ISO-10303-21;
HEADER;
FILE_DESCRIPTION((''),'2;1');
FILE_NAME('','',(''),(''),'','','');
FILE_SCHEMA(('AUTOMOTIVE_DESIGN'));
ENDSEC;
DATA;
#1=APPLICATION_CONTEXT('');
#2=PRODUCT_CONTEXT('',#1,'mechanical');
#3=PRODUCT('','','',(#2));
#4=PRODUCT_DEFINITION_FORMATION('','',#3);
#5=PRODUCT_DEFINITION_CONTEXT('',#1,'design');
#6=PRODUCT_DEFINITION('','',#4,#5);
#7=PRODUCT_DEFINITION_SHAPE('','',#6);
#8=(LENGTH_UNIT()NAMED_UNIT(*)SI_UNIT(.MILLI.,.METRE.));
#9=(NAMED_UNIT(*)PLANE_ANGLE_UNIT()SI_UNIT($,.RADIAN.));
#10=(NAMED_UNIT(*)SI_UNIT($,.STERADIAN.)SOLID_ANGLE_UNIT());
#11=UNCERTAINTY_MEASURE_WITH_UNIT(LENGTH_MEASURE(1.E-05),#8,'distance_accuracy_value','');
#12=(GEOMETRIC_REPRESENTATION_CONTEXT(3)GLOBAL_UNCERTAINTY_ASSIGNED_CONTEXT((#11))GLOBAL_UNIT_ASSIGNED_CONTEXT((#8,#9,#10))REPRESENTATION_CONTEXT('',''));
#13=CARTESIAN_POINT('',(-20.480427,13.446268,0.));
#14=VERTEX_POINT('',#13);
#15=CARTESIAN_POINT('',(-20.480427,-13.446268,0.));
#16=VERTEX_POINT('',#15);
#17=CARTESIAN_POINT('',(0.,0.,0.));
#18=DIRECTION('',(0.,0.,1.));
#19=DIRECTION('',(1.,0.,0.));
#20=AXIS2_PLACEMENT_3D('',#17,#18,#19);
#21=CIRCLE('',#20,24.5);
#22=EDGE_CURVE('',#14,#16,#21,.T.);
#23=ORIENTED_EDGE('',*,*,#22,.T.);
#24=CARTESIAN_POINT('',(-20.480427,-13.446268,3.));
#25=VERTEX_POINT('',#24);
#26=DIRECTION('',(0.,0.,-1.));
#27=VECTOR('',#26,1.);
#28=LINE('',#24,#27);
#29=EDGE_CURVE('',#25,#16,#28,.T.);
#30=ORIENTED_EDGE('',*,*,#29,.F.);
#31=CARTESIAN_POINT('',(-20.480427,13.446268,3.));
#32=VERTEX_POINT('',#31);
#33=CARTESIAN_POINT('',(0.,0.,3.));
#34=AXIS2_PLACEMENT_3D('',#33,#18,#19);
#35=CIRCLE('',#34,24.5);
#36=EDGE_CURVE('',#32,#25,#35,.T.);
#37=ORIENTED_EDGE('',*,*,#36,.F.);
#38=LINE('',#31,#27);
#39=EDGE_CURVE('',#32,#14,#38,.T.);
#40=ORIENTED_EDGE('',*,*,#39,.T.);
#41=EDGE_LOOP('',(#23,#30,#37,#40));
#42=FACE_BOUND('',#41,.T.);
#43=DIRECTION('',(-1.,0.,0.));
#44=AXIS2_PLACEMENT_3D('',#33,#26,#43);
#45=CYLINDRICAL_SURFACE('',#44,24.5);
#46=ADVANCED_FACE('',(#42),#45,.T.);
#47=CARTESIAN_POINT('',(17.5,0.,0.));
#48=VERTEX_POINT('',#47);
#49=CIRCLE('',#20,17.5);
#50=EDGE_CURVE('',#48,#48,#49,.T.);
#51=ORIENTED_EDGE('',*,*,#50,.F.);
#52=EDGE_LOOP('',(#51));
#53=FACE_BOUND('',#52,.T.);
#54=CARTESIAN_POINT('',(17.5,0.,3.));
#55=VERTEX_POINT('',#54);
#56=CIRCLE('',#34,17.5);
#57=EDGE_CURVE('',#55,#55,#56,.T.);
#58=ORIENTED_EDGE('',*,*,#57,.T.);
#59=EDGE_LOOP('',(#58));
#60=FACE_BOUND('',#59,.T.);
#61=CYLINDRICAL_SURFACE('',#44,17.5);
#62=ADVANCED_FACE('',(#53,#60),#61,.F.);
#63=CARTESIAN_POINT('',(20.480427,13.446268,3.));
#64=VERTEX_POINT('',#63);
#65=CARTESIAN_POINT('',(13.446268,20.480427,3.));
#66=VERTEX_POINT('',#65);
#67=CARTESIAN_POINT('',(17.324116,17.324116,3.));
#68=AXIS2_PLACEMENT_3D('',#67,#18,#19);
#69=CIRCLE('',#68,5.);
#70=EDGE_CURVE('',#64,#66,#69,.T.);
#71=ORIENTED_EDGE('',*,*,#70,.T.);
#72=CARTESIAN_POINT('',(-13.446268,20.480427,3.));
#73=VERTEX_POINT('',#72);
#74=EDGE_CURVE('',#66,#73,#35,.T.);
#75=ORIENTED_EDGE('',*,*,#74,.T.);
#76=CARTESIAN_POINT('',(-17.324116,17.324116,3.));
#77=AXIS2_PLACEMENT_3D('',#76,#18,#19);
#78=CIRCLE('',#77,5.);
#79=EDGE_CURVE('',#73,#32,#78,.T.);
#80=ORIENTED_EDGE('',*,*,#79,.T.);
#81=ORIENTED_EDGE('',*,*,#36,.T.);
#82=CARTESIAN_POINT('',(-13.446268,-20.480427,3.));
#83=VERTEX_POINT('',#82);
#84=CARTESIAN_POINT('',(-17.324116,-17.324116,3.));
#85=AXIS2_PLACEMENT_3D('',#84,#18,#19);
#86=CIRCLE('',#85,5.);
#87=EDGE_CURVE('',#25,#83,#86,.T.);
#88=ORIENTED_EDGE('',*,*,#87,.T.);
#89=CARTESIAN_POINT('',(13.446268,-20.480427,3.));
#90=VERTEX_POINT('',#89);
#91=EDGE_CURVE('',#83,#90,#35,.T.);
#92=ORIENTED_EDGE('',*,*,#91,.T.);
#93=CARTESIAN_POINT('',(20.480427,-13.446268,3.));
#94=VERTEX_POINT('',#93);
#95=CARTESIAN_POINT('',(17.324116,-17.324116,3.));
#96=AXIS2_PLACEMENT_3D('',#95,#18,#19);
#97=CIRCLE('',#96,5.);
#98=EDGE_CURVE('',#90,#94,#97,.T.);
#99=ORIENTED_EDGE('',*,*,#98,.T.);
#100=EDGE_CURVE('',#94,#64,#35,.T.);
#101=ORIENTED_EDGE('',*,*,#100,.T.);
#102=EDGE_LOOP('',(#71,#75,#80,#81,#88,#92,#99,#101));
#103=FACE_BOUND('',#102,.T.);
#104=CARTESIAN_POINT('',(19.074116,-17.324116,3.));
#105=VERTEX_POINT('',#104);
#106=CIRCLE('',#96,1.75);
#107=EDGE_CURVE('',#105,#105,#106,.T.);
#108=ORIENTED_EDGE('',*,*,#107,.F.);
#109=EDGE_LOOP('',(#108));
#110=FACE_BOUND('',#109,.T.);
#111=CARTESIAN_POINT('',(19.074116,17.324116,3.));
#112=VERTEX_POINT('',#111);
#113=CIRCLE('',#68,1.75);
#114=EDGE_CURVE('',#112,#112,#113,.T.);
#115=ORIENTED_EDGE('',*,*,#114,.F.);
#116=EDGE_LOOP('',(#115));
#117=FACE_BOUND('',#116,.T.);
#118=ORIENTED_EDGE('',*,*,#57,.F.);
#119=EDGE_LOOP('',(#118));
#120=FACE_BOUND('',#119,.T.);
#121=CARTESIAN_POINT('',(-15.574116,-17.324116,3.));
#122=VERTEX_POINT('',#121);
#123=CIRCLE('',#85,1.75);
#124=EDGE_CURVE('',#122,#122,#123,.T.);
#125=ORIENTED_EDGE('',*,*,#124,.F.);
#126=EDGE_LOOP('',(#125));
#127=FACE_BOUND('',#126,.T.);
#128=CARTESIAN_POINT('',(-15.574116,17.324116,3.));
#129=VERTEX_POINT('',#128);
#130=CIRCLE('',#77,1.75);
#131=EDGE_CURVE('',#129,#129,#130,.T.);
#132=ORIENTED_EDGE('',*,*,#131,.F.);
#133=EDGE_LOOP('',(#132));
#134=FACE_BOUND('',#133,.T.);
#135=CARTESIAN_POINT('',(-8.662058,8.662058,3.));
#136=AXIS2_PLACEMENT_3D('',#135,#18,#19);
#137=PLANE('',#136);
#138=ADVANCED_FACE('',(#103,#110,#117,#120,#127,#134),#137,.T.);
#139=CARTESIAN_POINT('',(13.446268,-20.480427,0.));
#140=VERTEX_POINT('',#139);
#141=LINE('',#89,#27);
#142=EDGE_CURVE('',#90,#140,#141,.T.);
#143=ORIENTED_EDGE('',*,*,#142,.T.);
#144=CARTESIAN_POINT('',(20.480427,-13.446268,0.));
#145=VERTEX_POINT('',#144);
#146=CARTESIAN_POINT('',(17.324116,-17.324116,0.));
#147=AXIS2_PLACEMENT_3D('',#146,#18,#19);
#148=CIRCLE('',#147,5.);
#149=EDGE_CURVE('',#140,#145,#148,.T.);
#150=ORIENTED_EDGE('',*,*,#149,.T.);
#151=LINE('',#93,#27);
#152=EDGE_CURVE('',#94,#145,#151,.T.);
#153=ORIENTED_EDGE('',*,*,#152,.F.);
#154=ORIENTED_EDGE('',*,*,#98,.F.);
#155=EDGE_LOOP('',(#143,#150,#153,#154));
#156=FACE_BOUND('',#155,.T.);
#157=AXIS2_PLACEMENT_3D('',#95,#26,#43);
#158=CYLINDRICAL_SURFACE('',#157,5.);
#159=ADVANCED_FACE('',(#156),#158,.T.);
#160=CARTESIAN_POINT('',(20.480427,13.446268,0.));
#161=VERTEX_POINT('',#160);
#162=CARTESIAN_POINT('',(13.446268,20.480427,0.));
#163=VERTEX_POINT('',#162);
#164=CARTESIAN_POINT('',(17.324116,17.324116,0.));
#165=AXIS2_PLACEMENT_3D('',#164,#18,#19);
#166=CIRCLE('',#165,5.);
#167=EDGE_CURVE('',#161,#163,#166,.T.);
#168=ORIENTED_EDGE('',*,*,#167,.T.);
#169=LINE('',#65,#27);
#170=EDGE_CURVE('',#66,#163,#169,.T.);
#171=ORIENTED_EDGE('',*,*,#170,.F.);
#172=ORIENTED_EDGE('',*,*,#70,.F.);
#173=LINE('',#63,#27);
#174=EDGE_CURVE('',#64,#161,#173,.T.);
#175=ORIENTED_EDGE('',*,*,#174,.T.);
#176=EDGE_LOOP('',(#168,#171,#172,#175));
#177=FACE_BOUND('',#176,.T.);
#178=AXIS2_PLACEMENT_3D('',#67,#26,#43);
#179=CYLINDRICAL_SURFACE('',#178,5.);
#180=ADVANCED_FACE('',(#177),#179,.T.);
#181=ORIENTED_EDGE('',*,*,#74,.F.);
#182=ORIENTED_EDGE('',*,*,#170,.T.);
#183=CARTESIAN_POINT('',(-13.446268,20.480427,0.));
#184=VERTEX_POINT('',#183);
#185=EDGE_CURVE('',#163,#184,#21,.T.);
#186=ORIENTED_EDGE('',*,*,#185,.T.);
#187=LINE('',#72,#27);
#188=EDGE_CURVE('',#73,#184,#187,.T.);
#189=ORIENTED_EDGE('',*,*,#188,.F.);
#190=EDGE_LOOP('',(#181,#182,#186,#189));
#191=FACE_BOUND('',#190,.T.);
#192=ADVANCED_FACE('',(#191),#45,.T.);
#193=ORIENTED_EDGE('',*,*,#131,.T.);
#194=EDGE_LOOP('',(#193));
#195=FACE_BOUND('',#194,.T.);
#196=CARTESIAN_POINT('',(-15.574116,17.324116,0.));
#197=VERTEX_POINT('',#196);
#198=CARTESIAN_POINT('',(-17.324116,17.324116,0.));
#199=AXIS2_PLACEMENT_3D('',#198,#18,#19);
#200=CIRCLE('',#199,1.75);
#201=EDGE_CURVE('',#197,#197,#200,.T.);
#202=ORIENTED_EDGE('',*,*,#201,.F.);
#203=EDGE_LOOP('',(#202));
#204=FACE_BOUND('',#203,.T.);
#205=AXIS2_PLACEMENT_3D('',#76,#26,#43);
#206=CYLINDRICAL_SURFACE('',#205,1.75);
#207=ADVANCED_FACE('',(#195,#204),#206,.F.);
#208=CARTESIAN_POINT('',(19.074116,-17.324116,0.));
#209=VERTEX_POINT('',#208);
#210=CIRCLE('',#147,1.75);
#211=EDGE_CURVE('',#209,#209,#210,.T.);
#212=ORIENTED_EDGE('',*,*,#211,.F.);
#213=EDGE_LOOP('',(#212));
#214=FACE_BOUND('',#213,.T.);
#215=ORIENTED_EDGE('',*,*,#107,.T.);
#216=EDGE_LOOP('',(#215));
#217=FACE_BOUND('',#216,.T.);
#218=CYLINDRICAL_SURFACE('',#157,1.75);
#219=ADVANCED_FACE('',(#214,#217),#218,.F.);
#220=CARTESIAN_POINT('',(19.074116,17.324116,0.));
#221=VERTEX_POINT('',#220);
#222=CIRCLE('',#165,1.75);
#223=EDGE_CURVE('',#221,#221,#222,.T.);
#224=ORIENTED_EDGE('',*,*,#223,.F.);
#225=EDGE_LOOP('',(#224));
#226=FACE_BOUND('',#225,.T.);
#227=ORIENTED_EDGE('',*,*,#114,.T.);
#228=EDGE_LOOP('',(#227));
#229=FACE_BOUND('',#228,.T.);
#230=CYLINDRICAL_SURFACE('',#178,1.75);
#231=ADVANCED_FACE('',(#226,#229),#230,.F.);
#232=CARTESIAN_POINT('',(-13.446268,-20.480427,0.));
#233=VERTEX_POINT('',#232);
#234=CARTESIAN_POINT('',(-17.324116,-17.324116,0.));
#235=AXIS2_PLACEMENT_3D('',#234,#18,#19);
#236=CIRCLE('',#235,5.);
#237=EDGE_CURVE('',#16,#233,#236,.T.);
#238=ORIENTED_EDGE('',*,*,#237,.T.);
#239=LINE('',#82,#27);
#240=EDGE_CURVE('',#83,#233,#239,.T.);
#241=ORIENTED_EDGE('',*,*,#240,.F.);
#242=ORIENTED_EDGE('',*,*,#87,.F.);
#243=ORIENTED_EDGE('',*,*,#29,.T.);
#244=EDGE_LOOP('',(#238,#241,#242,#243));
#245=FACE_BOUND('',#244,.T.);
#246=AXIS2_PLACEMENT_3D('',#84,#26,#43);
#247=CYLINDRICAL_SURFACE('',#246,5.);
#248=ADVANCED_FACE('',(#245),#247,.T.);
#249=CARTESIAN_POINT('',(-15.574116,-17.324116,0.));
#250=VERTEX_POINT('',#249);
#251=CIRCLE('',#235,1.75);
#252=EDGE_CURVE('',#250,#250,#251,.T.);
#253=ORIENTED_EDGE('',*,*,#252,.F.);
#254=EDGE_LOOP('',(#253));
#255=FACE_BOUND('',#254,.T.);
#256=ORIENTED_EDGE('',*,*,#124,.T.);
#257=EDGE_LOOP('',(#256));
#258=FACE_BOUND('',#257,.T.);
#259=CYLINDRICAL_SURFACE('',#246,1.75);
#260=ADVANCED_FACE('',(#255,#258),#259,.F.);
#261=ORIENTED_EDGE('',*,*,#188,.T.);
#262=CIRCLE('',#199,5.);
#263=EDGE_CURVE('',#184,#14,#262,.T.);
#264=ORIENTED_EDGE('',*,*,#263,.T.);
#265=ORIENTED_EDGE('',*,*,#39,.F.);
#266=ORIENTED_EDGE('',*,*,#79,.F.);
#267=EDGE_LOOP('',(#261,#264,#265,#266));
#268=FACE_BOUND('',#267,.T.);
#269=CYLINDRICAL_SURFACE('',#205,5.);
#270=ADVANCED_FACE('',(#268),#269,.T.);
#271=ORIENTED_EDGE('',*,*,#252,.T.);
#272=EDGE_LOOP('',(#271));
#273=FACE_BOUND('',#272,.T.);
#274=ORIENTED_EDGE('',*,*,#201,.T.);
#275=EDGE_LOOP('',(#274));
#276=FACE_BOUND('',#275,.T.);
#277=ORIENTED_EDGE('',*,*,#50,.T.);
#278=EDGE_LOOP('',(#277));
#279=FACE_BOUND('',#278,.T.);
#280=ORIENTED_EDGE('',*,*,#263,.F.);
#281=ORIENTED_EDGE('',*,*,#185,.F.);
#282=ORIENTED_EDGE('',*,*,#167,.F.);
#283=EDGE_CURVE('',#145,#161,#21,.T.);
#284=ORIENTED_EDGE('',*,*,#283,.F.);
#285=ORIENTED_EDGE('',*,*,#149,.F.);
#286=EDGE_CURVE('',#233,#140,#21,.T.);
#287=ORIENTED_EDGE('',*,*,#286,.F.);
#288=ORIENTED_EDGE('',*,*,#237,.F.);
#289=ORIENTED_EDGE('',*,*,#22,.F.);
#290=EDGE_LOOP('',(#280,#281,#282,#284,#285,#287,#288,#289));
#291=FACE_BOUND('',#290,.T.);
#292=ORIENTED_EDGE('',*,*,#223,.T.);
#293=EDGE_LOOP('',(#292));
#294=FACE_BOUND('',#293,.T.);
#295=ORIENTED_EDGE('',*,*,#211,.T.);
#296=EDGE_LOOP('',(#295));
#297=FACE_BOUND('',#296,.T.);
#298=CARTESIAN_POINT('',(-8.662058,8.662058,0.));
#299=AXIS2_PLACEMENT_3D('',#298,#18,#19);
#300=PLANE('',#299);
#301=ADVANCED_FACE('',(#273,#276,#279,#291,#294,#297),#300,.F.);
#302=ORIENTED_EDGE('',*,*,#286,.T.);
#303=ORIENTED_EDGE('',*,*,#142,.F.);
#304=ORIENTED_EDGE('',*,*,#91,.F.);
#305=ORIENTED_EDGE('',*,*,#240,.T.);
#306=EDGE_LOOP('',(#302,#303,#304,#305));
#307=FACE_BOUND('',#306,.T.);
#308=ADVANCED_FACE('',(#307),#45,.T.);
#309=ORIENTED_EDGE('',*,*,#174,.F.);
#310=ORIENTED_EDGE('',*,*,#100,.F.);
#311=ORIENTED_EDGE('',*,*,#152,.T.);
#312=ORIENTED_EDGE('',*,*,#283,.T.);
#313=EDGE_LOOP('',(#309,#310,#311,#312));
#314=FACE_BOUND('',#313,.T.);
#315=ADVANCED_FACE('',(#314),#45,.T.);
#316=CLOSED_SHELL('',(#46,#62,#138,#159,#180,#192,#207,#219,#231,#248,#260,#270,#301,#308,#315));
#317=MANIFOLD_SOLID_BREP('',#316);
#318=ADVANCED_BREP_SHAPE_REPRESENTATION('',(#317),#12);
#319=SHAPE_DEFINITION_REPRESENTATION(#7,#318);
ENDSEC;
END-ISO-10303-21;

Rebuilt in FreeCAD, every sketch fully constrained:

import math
import FreeCAD as App
import Part
import Sketcher

V = App.Vector
Q = App.Units.Quantity

doc = App.newDocument("Part")
params = doc.addObject("Spreadsheet::Sheet", "Params")
for row, (alias, value) in enumerate([
    ("sketch1_diameter", "35 mm"),
    ("sketch1_radius", "5 mm"),
    ("sketch1_diameter2", "3.5 mm"),
    ("sketch1_radius2", "24.5 mm"),
    ("pad1_length", "3 mm"),
], start=1):
    params.set(f"A{row}", alias)
    params.set(f"B{row}", "=" + value)
    params.setAlias(f"B{row}", alias)

body = doc.addObject("PartDesign::Body", "Body")

sketch1 = doc.addObject("Sketcher::SketchObject", "Sketch")
body.addObject(sketch1)
sketch1.AttachmentSupport = (doc.XY_Plane, [""])
sketch1.MapMode = "FlatFace"
sketch1.addGeometry(Part.ArcOfCircle(Part.Circle(V(-17.3, 17.3, 0), V(0, 0, 1), 5), math.radians(39), math.radians(231)), False)
sketch1.addGeometry(Part.ArcOfCircle(Part.Circle(V(0, 0, 0), V(0, 0, 1), 24.5), math.radians(147), math.radians(213)), False)
sketch1.addGeometry(Part.ArcOfCircle(Part.Circle(V(-17.3, -17.3, 0), V(0, 0, 1), 5), math.radians(129), math.radians(321)), False)
sketch1.addGeometry(Part.ArcOfCircle(Part.Circle(V(0, 0, 0), V(0, 0, 1), 24.5), math.radians(-123), math.radians(-57)), False)
sketch1.addGeometry(Part.ArcOfCircle(Part.Circle(V(17.3, -17.3, 0), V(0, 0, 1), 5), math.radians(-141), math.radians(51)), False)
sketch1.addGeometry(Part.ArcOfCircle(Part.Circle(V(0, 0, 0), V(0, 0, 1), 24.5), math.radians(-33), math.radians(33)), False)
sketch1.addGeometry(Part.ArcOfCircle(Part.Circle(V(17.3, 17.3, 0), V(0, 0, 1), 5), math.radians(-51), math.radians(141)), False)
sketch1.addGeometry(Part.ArcOfCircle(Part.Circle(V(0, 0, 0), V(0, 0, 1), 24.5), math.radians(57), math.radians(123)), False)
sketch1.addGeometry(Part.Circle(V(-17.3, -17.3, 0), V(0, 0, 1), 1.8), False)
sketch1.addGeometry(Part.Circle(V(17.3, -17.3, 0), V(0, 0, 1), 1.8), False)
sketch1.addGeometry(Part.Circle(V(-17.3, 17.3, 0), V(0, 0, 1), 1.8), False)
sketch1.addGeometry(Part.Circle(V(0, 0, 0), V(0, 0, 1), 17.5), False)
sketch1.addGeometry(Part.Circle(V(17.3, 17.3, 0), V(0, 0, 1), 1.8), False)
sketch1.addConstraint(Sketcher.Constraint("Coincident", 0, 2, 1, 1))
sketch1.addConstraint(Sketcher.Constraint("Coincident", 1, 2, 2, 1))
sketch1.addConstraint(Sketcher.Constraint("Coincident", 2, 2, 3, 1))
sketch1.addConstraint(Sketcher.Constraint("Coincident", 3, 2, 4, 1))
sketch1.addConstraint(Sketcher.Constraint("Coincident", 4, 2, 5, 1))
sketch1.addConstraint(Sketcher.Constraint("Coincident", 5, 2, 6, 1))
sketch1.addConstraint(Sketcher.Constraint("Coincident", 6, 2, 7, 1))
sketch1.addConstraint(Sketcher.Constraint("Coincident", 7, 2, 0, 1))
sketch1.addConstraint(Sketcher.Constraint("Coincident", 1, 3, -1, 1))
sketch1.addConstraint(Sketcher.Constraint("Coincident", 3, 3, -1, 1))
sketch1.addConstraint(Sketcher.Constraint("Coincident", 5, 3, -1, 1))
sketch1.addConstraint(Sketcher.Constraint("Coincident", 7, 3, -1, 1))
sketch1.addConstraint(Sketcher.Constraint("Coincident", 11, 3, -1, 1))
sketch1.addConstraint(Sketcher.Constraint("Coincident", 8, 3, 2, 3))
sketch1.addConstraint(Sketcher.Constraint("Coincident", 9, 3, 4, 3))
sketch1.addConstraint(Sketcher.Constraint("Coincident", 10, 3, 0, 3))
sketch1.addConstraint(Sketcher.Constraint("Coincident", 12, 3, 6, 3))
sketch1.addConstraint(Sketcher.Constraint("Equal", 0, 2))
sketch1.addConstraint(Sketcher.Constraint("Equal", 1, 3))
sketch1.addConstraint(Sketcher.Constraint("Equal", 2, 4))
sketch1.addConstraint(Sketcher.Constraint("Equal", 3, 5))
sketch1.addConstraint(Sketcher.Constraint("Equal", 4, 6))
sketch1.addConstraint(Sketcher.Constraint("Equal", 5, 7))
sketch1.addConstraint(Sketcher.Constraint("Equal", 8, 9))
sketch1.addConstraint(Sketcher.Constraint("Equal", 9, 10))
sketch1.addConstraint(Sketcher.Constraint("Equal", 10, 12))
sketch1.addConstraint(Sketcher.Constraint("Symmetric", 0, 3, 4, 3, -1, 1))
sketch1.addConstraint(Sketcher.Constraint("Symmetric", 2, 3, 6, 3, -1, 1))
sketch1.addConstraint(Sketcher.Constraint("Symmetric", 2, 3, 4, 3, -2))
sketch1.addConstraint(Sketcher.Constraint("Diameter", 11, Q("35 mm")))
sketch1.addConstraint(Sketcher.Constraint("Radius", 0, Q("5 mm")))
sketch1.addConstraint(Sketcher.Constraint("Diameter", 8, Q("3.5 mm")))
sketch1.addConstraint(Sketcher.Constraint("Radius", 1, Q("24.5 mm")))
sketch1.addConstraint(Sketcher.Constraint("DistanceY", -1, 1, 0, 2, Q("13.446268 mm")))
sketch1.addConstraint(Sketcher.Constraint("DistanceX", 2, 2, -1, 1, Q("13.446268 mm")))
sketch1.setExpression("Constraints[29]", "Params.sketch1_diameter")
sketch1.setExpression("Constraints[30]", "Params.sketch1_radius")
sketch1.setExpression("Constraints[31]", "Params.sketch1_diameter2")
sketch1.setExpression("Constraints[32]", "Params.sketch1_radius2")
pad1 = doc.addObject("PartDesign::Pad", "Pad")
body.addObject(pad1)
pad1.Profile = sketch1
pad1.setExpression("Length", "Params.pad1_length")

doc.recompute()
